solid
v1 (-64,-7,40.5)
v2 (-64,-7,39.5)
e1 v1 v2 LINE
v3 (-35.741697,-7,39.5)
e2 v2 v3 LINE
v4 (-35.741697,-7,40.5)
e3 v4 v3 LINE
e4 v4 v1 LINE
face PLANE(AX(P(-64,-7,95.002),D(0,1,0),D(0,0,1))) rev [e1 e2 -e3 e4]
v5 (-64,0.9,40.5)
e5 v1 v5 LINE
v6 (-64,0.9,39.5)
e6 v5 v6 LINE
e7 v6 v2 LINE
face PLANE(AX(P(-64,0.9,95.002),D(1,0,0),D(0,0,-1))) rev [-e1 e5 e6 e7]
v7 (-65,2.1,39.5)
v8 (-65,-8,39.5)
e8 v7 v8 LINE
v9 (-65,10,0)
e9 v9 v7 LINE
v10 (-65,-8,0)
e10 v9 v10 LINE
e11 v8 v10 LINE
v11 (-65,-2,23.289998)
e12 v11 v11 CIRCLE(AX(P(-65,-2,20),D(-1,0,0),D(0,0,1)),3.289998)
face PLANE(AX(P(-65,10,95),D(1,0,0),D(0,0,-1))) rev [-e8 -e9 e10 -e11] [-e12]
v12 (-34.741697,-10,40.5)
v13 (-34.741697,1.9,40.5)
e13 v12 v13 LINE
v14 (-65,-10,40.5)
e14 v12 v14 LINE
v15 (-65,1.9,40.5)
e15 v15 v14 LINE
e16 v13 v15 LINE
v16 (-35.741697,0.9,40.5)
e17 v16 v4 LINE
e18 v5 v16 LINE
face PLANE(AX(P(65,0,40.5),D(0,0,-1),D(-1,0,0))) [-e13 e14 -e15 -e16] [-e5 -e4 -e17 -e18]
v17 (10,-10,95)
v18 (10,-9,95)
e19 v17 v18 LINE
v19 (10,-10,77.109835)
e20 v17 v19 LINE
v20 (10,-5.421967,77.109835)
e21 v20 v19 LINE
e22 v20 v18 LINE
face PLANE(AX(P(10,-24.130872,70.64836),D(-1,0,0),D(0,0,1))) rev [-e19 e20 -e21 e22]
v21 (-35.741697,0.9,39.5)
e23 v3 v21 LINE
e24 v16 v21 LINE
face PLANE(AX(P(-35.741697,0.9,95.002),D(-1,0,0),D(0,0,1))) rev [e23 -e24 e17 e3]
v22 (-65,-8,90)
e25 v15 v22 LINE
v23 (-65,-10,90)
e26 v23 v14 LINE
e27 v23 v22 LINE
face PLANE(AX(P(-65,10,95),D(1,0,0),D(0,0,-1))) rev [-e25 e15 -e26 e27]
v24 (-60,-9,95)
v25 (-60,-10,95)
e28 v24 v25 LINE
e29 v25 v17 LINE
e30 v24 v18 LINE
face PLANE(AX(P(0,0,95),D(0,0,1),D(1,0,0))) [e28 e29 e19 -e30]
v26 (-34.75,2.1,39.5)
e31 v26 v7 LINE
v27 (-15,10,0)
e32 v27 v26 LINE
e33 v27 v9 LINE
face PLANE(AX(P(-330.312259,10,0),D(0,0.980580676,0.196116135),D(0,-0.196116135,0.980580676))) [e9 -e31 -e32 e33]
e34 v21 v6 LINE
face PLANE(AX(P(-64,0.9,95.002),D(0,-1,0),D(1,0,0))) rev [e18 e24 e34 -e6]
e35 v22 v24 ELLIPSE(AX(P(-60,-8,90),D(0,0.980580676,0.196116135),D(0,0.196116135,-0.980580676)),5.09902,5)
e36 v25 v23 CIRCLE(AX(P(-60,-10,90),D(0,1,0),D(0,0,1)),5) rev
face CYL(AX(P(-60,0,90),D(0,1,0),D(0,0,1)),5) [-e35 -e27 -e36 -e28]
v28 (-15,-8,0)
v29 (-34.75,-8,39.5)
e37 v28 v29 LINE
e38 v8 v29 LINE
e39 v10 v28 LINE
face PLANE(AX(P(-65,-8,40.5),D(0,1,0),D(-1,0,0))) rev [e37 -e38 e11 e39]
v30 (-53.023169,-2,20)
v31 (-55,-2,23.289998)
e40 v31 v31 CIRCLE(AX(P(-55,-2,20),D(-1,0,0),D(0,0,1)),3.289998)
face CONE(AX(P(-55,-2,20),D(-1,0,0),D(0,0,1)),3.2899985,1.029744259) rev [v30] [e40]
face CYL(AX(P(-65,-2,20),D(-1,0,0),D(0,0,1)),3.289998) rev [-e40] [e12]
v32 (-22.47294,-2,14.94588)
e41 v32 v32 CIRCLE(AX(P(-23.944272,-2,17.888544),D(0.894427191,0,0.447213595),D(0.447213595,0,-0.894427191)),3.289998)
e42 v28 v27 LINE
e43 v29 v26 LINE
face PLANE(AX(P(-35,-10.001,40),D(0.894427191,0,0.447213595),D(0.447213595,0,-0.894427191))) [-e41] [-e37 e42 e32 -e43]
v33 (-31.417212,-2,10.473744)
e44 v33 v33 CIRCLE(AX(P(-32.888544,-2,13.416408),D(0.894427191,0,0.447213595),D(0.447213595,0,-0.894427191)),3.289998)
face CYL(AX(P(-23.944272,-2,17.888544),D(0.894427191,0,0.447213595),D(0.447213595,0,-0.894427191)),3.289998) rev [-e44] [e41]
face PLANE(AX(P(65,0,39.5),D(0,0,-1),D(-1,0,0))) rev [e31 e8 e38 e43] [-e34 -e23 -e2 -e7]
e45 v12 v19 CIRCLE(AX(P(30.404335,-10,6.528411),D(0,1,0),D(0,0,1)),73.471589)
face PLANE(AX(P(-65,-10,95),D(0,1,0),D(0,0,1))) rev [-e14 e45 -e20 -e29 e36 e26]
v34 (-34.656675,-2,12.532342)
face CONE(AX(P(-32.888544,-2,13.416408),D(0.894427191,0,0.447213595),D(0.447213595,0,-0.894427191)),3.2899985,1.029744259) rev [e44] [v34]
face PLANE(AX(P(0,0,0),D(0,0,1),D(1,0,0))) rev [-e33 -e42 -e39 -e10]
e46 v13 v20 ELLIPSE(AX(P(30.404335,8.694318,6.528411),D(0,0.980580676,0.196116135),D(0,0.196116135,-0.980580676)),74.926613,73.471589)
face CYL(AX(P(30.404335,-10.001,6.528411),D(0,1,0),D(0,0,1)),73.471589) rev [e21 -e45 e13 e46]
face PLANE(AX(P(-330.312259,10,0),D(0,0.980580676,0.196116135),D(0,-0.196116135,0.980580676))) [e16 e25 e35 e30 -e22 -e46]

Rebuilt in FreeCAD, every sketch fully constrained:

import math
import FreeCAD as App
import Part
import Sketcher


def edges_at(feature, points):
    """Names of the edges that pass closest to the given points."""
    edges = feature.Shape.Edges
    near = lambda p: min(range(len(edges)), key=lambda i: edges[i].distToShape(Part.Vertex(*p))[0])
    return sorted({f"Edge{near(p) + 1}" for p in points})


def add_polygon(sketch, points):
    """Adds a closed chain of lines whose ends are joined by coincident constraints."""
    first, n = sketch.GeometryCount, len(points)
    for a, b in zip(points, points[1:] + points[:1]):
        sketch.addGeometry(Part.LineSegment(App.Vector(*a, 0), App.Vector(*b, 0)), False)
    for i in range(n):
        sketch.addConstraint(Sketcher.Constraint("Coincident", first + i, 2, first + (i + 1) % n, 1))

doc = App.newDocument("Part")
body = doc.addObject("PartDesign::Body", "Body")
body.AllowCompound = True

# Sketch on XY plane
sketch1 = body.newObject("Sketcher::SketchObject", "Sketch")
sketch1.AttachmentSupport = (doc.getObject("XY_Plane"), [""])
sketch1.MapMode = "FlatFace"
add_polygon(sketch1, [(-65, 10), (-65, -10), (65, -10), (65, 10)])  # lines 0-3
sketch1.addConstraint(Sketcher.Constraint("Vertical", 0))
sketch1.addConstraint(Sketcher.Constraint("Horizontal", 1))
sketch1.addConstraint(Sketcher.Constraint("Vertical", 2))
sketch1.addConstraint(Sketcher.Constraint("Horizontal", 3))
sketch1.addConstraint(Sketcher.Constraint("Symmetric", 0, 2, 2, 2, -1, 1))
sketch1.addConstraint(Sketcher.Constraint("DistanceX", 1, 1, 1, 2, 130.0))
sketch1.addConstraint(Sketcher.Constraint("DistanceY", 0, 2, 0, 1, 20.0))
pad1 = body.newObject("PartDesign::Pad", "Pad")
pad1.Profile = sketch1
pad1.Length = 95

# Sketch on XZ plane
sketch2 = body.newObject("Sketcher::SketchObject", "Sketch001")
sketch2.AttachmentSupport = (doc.getObject("XZ_Plane"), [""])
sketch2.MapMode = "FlatFace"
sketch2.AttachmentOffset = App.Placement(App.Vector(0, 0, -10), App.Rotation())
sketch2.addGeometry(Part.LineSegment(App.Vector(65, 0, 0), App.Vector(-15, 0, 0)), False)
sketch2.addGeometry(Part.LineSegment(App.Vector(-15, 0, 0), App.Vector(-35, 40, 0)), False)
sketch2.addGeometry(Part.ArcOfCircle(Part.Circle(App.Vector(30.404335, 6.528411, 0), App.Vector(0, 0, 1), 73.471589), math.radians(90), math.radians(152.898265)), False)
sketch2.addGeometry(Part.LineSegment(App.Vector(30.404335, 80, 0), App.Vector(65, 80, 0)), False)
sketch2.addGeometry(Part.LineSegment(App.Vector(65, 80, 0), App.Vector(65, 0, 0)), False)
sketch2.addConstraint(Sketcher.Constraint("Coincident", 0, 2, 1, 1))
sketch2.addConstraint(Sketcher.Constraint("Coincident", 1, 2, 2, 2))
sketch2.addConstraint(Sketcher.Constraint("Tangent", 2, 1, 3, 1))
sketch2.addConstraint(Sketcher.Constraint("Coincident", 3, 2, 4, 1))
sketch2.addConstraint(Sketcher.Constraint("Coincident", 4, 2, 0, 1))
sketch2.addConstraint(Sketcher.Constraint("Horizontal", 0))
sketch2.addConstraint(Sketcher.Constraint("Horizontal", 3))
sketch2.addConstraint(Sketcher.Constraint("Vertical", 4))
sketch2.addConstraint(Sketcher.Constraint("PointOnObject", 0, 2, -1))
sketch2.addConstraint(Sketcher.Constraint("Equal", 0, 4))
sketch2.addConstraint(Sketcher.Constraint("DistanceX", 0, 2, 0, 1, 80.0))
sketch2.addConstraint(Sketcher.Constraint("DistanceX", 0, 2, -1, 1, 15.0))
sketch2.addConstraint(Sketcher.Constraint("DistanceX", 1, 2, -1, 1, 35.0))
sketch2.addConstraint(Sketcher.Constraint("DistanceY", -1, 1, 1, 2, 40.0))
sketch2.addConstraint(Sketcher.Constraint("Radius", 2, 73.471589))
pocket1 = body.newObject("PartDesign::Pocket", "Pocket")
pocket1.Profile = sketch2
pocket1.Type = "UpToFirst"
pocket1.Reversed = True

# Sketch on YZ plane
sketch3 = body.newObject("Sketcher::SketchObject", "Sketch002")
sketch3.AttachmentSupport = (doc.getObject("YZ_Plane"), [""])
sketch3.MapMode = "FlatFace"
sketch3.AttachmentOffset = App.Placement(App.Vector(0, 0, -65), App.Rotation())
add_polygon(sketch3, [(50.040027, -200.200134), (-49.040027, 295.200134), (351.360242, 375.280188), (450.440296, -120.120081)])  # lines 0-3
sketch3.addConstraint(Sketcher.Constraint("Perpendicular", 0, 1))
sketch3.addConstraint(Sketcher.Constraint("Perpendicular", 1, 2))
sketch3.addConstraint(Sketcher.Constraint("Perpendicular", 2, 3))
sketch3.addConstraint(Sketcher.Constraint("DistanceX", -1, 1, 1, 2, 351.360242))
sketch3.addConstraint(Sketcher.Constraint("DistanceY", -1, 1, 1, 2, 375.280188))
sketch3.addConstraint(Sketcher.Constraint("DistanceY", 2, 2, -1, 1, 120.120081))
sketch3.addConstraint(Sketcher.Constraint("DistanceX", 0, 2, 1, 2, 400.400269))
sketch3.addConstraint(Sketcher.Constraint("Distance", 0, 505.211128))
pocket2 = body.newObject("PartDesign::Pocket", "Pocket001")
pocket2.Profile = sketch3
pocket2.Type = "ThroughAll"
pocket2.Midplane = True

# Sketch on YZ plane
sketch4 = body.newObject("Sketcher::SketchObject", "Sketch003")
sketch4.AttachmentSupport = (doc.getObject("YZ_Plane"), [""])
sketch4.MapMode = "FlatFace"
sketch4.AttachmentOffset = App.Placement(App.Vector(0, 0, -65), App.Rotation())
sketch4.addGeometry(Part.Circle(App.Vector(-2, 20, 0), App.Vector(0, 0, 1), 3.289998), False)
sketch4.addConstraint(Sketcher.Constraint("DistanceX", 0, 3, -1, 1, 2.0))
sketch4.addConstraint(Sketcher.Constraint("DistanceY", -1, 1, 0, 3, 20.0))
sketch4.addConstraint(Sketcher.Constraint("Diameter", 0, 6.579997))
doc.recompute()
hole = body.newObject("PartDesign::Hole", "Hole")
hole.Profile = sketch4
hole.ThreadType = "None"
hole.Diameter = 6.579997
hole.DepthType = "Dimension"
hole.Depth = 10
hole.DrillPoint = "Angled"
hole.DrillPointAngle = 118
hole.Reversed = True

# Sketch on an angled plane
sketch5 = body.newObject("Sketcher::SketchObject", "Sketch004")
sketch5.Placement = App.Placement(App.Vector(-12, 0, -6), App.Rotation(App.Vector(0.447213595, 0, -0.894427191), App.Vector(0, 1, 0), App.Vector(0.894427191, 0, 0.447213595), "ZXY"))
sketch5.addGeometry(Part.Circle(App.Vector(-26.708204, -2, 0), App.Vector(0, 0, 1), 3.289998), False)
sketch5.addConstraint(Sketcher.Constraint("DistanceY", 0, 3, -1, 1, 2.0))
sketch5.addConstraint(Sketcher.Constraint("Diameter", 0, 6.579997))
sketch5.addConstraint(Sketcher.Constraint("DistanceX", 0, 3, -1, 1, 26.708204))
doc.recompute()
hole2 = body.newObject("PartDesign::Hole", "Hole001")
hole2.Profile = sketch5
hole2.ThreadType = "None"
hole2.Diameter = 6.579997
hole2.DepthType = "Dimension"
hole2.Depth = 10
hole2.DrillPoint = "Angled"
hole2.DrillPointAngle = 118
doc.recompute()

fillet = body.newObject("PartDesign::Fillet", "Fillet")
fillet.Base = (hole2, edges_at(hole2, [(-65, -9.5, 95)]))
fillet.Radius = 5

# Sketch on YZ plane
sketch6 = body.newObject("Sketcher::SketchObject", "Sketch005")
sketch6.AttachmentSupport = (doc.getObject("YZ_Plane"), [""])
sketch6.MapMode = "FlatFace"
sketch6.AttachmentOffset = App.Placement(App.Vector(0, 0, -65), App.Rotation())
add_polygon(sketch6, [(2.1, 39.5), (-10, 39.5), (-10, 40.5), (1.9, 40.5)])  # lines 0-3
sketch6.addConstraint(Sketcher.Constraint("Horizontal", 0))
sketch6.addConstraint(Sketcher.Constraint("Vertical", 1))
sketch6.addConstraint(Sketcher.Constraint("Horizontal", 2))
sketch6.addConstraint(Sketcher.Constraint("DistanceY", 1, 1, 1, 2, 1.0))
sketch6.addConstraint(Sketcher.Constraint("DistanceX", 0, 2, 0, 1, 12.1))
sketch6.addConstraint(Sketcher.Constraint("DistanceX", 2, 1, 2, 2, 11.9))
sketch6.addConstraint(Sketcher.Constraint("DistanceX", 0, 2, -1, 1, 10.0))
sketch6.addConstraint(Sketcher.Constraint("DistanceY", -1, 1, 0, 2, 39.5))
pocket3 = body.newObject("PartDesign::Pocket", "Pocket002")
pocket3.Profile = sketch6
pocket3.Type = "ThroughAll"
pocket3.Reversed = True

# Sketch on XY plane
sketch7 = body.newObject("Sketcher::SketchObject", "Sketch006")
sketch7.AttachmentSupport = (doc.getObject("XY_Plane"), [""])
sketch7.MapMode = "FlatFace"
sketch7.AttachmentOffset = App.Placement(App.Vector(0, 0, 39.5), App.Rotation())
add_polygon(sketch7, [(-64, 0.9), (-64, -7), (-35.741697, -7), (-35.741697, 0.9)])  # lines 0-3
sketch7.addConstraint(Sketcher.Constraint("Vertical", 0))
sketch7.addConstraint(Sketcher.Constraint("Horizontal", 1))
sketch7.addConstraint(Sketcher.Constraint("Vertical", 2))
sketch7.addConstraint(Sketcher.Constraint("Horizontal", 3))
sketch7.addConstraint(Sketcher.Constraint("DistanceY", 0, 2, 0, 1, 7.9))
sketch7.addConstraint(Sketcher.Constraint("DistanceX", 0, 2, -1, 1, 64.0))
sketch7.addConstraint(Sketcher.Constraint("DistanceY", 0, 2, -1, 1, 7.0))
sketch7.addConstraint(Sketcher.Constraint("DistanceX", 1, 1, 1, 2, 28.258303))
pad2 = body.newObject("PartDesign::Pad", "Pad001")
pad2.Profile = sketch7
pad2.Type = "UpToFirst"

# Sketch on an angled plane
sketch8 = body.newObject("Sketcher::SketchObject", "Sketch007")
sketch8.Placement = App.Placement(App.Vector(0, 9.615385, 1.923077), App.Rotation(App.Vector(1, 0, 0), App.Vector(0, 0.196116135, -0.980580676), App.Vector(0, 0.980580676, 0.196116135), "ZXY"))
add_polygon(sketch8, [(10, -74.00887), (10, -95.856501), (65, -95.856501), (65, -74.00887)])  # lines 0-3
sketch8.addConstraint(Sketcher.Constraint("Vertical", 0))
sketch8.addConstraint(Sketcher.Constraint("Horizontal", 1))
sketch8.addConstraint(Sketcher.Constraint("Vertical", 2))
sketch8.addConstraint(Sketcher.Constraint("Horizontal", 3))
sketch8.addConstraint(Sketcher.Constraint("DistanceX", 1, 1, 1, 2, 55.0))
sketch8.addConstraint(Sketcher.Constraint("DistanceX", -1, 1, 0, 2, 10.0))
sketch8.addConstraint(Sketcher.Constraint("DistanceY", 0, 2, 0, 1, 21.847632))
sketch8.addConstraint(Sketcher.Constraint("DistanceY", 0, 2, -1, 1, 95.856501))
pocket4 = body.newObject("PartDesign::Pocket", "Pocket003")
pocket4.Profile = sketch8
pocket4.Type = "UpToFirst"

# Sketch on XY plane
sketch9 = body.newObject("Sketcher::SketchObject", "Sketch008")
sketch9.AttachmentSupport = (doc.getObject("XY_Plane"), [""])
sketch9.MapMode = "FlatFace"
add_polygon(sketch9, [(-15, -8), (-15, -10), (-65, -10), (-65, -8)])  # lines 0-3
sketch9.addConstraint(Sketcher.Constraint("Vertical", 0))
sketch9.addConstraint(Sketcher.Constraint("Horizontal", 1))
sketch9.addConstraint(Sketcher.Constraint("Vertical", 2))
sketch9.addConstraint(Sketcher.Constraint("Horizontal", 3))
sketch9.addConstraint(Sketcher.Constraint("DistanceX", 1, 2, 1, 1, 50.0))
sketch9.addConstraint(Sketcher.Constraint("DistanceY", 0, 2, 0, 1, 2.0))
sketch9.addConstraint(Sketcher.Constraint("DistanceX", 0, 2, -1, 1, 15.0))
sketch9.addConstraint(Sketcher.Constraint("DistanceY", 0, 2, -1, 1, 10.0))
pocket5 = body.newObject("PartDesign::Pocket", "Pocket004")
pocket5.Profile = sketch9
pocket5.Length = 40.5
pocket5.Reversed = True

doc.recompute()
